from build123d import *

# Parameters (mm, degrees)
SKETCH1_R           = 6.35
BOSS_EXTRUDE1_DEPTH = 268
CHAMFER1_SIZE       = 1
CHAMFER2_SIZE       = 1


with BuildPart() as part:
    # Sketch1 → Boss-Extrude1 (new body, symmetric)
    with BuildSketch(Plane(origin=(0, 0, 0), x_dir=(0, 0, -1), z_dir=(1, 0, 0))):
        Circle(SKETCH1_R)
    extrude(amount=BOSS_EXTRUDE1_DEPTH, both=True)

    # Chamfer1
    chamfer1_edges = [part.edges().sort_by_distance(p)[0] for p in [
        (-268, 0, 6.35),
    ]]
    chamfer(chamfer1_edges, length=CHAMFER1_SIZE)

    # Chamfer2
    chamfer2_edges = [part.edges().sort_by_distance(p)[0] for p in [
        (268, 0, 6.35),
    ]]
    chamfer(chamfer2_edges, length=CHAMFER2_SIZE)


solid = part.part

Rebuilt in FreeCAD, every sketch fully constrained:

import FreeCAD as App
import Part
import Sketcher

V = App.Vector
Q = App.Units.Quantity


def edges_at(feature, points):
    """Names of the edges that pass closest to the given points."""
    edges = feature.Shape.Edges
    near = lambda p: min(range(len(edges)), key=lambda i: edges[i].distToShape(Part.Vertex(*p))[0])
    return sorted({f"Edge{near(p) + 1}" for p in points})

doc = App.newDocument("Part")
body = doc.addObject("PartDesign::Body", "Body")

sketch1 = body.newObject("Sketcher::SketchObject", "Sketch")
sketch1.AttachmentSupport = (doc.getObject("YZ_Plane"), [""])
sketch1.MapMode = "FlatFace"
sketch1.addGeometry(Part.Circle(V(0, 0, 0), V(0, 0, 1), 6), False)
sketch1.addConstraint([
    Sketcher.Constraint("Coincident", 0, 3, -1, 1),
    Sketcher.Constraint("Diameter", 0, Q("12.7 mm")),
])
pad1 = body.newObject("PartDesign::Pad", "Pad")
pad1.Profile = sketch1
pad1.Length = 536
pad1.Midplane = True
doc.recompute()

chamfer = body.newObject("PartDesign::Chamfer", "Chamfer")
chamfer.Base = (pad1, edges_at(pad1, [(-268, 0, 6.35)]))
chamfer.Size = 1
doc.recompute()

chamfer2 = body.newObject("PartDesign::Chamfer", "Chamfer001")
chamfer2.Base = (chamfer, edges_at(chamfer, [(268, 0, 6.35)]))
chamfer2.Size = 1

doc.recompute()
